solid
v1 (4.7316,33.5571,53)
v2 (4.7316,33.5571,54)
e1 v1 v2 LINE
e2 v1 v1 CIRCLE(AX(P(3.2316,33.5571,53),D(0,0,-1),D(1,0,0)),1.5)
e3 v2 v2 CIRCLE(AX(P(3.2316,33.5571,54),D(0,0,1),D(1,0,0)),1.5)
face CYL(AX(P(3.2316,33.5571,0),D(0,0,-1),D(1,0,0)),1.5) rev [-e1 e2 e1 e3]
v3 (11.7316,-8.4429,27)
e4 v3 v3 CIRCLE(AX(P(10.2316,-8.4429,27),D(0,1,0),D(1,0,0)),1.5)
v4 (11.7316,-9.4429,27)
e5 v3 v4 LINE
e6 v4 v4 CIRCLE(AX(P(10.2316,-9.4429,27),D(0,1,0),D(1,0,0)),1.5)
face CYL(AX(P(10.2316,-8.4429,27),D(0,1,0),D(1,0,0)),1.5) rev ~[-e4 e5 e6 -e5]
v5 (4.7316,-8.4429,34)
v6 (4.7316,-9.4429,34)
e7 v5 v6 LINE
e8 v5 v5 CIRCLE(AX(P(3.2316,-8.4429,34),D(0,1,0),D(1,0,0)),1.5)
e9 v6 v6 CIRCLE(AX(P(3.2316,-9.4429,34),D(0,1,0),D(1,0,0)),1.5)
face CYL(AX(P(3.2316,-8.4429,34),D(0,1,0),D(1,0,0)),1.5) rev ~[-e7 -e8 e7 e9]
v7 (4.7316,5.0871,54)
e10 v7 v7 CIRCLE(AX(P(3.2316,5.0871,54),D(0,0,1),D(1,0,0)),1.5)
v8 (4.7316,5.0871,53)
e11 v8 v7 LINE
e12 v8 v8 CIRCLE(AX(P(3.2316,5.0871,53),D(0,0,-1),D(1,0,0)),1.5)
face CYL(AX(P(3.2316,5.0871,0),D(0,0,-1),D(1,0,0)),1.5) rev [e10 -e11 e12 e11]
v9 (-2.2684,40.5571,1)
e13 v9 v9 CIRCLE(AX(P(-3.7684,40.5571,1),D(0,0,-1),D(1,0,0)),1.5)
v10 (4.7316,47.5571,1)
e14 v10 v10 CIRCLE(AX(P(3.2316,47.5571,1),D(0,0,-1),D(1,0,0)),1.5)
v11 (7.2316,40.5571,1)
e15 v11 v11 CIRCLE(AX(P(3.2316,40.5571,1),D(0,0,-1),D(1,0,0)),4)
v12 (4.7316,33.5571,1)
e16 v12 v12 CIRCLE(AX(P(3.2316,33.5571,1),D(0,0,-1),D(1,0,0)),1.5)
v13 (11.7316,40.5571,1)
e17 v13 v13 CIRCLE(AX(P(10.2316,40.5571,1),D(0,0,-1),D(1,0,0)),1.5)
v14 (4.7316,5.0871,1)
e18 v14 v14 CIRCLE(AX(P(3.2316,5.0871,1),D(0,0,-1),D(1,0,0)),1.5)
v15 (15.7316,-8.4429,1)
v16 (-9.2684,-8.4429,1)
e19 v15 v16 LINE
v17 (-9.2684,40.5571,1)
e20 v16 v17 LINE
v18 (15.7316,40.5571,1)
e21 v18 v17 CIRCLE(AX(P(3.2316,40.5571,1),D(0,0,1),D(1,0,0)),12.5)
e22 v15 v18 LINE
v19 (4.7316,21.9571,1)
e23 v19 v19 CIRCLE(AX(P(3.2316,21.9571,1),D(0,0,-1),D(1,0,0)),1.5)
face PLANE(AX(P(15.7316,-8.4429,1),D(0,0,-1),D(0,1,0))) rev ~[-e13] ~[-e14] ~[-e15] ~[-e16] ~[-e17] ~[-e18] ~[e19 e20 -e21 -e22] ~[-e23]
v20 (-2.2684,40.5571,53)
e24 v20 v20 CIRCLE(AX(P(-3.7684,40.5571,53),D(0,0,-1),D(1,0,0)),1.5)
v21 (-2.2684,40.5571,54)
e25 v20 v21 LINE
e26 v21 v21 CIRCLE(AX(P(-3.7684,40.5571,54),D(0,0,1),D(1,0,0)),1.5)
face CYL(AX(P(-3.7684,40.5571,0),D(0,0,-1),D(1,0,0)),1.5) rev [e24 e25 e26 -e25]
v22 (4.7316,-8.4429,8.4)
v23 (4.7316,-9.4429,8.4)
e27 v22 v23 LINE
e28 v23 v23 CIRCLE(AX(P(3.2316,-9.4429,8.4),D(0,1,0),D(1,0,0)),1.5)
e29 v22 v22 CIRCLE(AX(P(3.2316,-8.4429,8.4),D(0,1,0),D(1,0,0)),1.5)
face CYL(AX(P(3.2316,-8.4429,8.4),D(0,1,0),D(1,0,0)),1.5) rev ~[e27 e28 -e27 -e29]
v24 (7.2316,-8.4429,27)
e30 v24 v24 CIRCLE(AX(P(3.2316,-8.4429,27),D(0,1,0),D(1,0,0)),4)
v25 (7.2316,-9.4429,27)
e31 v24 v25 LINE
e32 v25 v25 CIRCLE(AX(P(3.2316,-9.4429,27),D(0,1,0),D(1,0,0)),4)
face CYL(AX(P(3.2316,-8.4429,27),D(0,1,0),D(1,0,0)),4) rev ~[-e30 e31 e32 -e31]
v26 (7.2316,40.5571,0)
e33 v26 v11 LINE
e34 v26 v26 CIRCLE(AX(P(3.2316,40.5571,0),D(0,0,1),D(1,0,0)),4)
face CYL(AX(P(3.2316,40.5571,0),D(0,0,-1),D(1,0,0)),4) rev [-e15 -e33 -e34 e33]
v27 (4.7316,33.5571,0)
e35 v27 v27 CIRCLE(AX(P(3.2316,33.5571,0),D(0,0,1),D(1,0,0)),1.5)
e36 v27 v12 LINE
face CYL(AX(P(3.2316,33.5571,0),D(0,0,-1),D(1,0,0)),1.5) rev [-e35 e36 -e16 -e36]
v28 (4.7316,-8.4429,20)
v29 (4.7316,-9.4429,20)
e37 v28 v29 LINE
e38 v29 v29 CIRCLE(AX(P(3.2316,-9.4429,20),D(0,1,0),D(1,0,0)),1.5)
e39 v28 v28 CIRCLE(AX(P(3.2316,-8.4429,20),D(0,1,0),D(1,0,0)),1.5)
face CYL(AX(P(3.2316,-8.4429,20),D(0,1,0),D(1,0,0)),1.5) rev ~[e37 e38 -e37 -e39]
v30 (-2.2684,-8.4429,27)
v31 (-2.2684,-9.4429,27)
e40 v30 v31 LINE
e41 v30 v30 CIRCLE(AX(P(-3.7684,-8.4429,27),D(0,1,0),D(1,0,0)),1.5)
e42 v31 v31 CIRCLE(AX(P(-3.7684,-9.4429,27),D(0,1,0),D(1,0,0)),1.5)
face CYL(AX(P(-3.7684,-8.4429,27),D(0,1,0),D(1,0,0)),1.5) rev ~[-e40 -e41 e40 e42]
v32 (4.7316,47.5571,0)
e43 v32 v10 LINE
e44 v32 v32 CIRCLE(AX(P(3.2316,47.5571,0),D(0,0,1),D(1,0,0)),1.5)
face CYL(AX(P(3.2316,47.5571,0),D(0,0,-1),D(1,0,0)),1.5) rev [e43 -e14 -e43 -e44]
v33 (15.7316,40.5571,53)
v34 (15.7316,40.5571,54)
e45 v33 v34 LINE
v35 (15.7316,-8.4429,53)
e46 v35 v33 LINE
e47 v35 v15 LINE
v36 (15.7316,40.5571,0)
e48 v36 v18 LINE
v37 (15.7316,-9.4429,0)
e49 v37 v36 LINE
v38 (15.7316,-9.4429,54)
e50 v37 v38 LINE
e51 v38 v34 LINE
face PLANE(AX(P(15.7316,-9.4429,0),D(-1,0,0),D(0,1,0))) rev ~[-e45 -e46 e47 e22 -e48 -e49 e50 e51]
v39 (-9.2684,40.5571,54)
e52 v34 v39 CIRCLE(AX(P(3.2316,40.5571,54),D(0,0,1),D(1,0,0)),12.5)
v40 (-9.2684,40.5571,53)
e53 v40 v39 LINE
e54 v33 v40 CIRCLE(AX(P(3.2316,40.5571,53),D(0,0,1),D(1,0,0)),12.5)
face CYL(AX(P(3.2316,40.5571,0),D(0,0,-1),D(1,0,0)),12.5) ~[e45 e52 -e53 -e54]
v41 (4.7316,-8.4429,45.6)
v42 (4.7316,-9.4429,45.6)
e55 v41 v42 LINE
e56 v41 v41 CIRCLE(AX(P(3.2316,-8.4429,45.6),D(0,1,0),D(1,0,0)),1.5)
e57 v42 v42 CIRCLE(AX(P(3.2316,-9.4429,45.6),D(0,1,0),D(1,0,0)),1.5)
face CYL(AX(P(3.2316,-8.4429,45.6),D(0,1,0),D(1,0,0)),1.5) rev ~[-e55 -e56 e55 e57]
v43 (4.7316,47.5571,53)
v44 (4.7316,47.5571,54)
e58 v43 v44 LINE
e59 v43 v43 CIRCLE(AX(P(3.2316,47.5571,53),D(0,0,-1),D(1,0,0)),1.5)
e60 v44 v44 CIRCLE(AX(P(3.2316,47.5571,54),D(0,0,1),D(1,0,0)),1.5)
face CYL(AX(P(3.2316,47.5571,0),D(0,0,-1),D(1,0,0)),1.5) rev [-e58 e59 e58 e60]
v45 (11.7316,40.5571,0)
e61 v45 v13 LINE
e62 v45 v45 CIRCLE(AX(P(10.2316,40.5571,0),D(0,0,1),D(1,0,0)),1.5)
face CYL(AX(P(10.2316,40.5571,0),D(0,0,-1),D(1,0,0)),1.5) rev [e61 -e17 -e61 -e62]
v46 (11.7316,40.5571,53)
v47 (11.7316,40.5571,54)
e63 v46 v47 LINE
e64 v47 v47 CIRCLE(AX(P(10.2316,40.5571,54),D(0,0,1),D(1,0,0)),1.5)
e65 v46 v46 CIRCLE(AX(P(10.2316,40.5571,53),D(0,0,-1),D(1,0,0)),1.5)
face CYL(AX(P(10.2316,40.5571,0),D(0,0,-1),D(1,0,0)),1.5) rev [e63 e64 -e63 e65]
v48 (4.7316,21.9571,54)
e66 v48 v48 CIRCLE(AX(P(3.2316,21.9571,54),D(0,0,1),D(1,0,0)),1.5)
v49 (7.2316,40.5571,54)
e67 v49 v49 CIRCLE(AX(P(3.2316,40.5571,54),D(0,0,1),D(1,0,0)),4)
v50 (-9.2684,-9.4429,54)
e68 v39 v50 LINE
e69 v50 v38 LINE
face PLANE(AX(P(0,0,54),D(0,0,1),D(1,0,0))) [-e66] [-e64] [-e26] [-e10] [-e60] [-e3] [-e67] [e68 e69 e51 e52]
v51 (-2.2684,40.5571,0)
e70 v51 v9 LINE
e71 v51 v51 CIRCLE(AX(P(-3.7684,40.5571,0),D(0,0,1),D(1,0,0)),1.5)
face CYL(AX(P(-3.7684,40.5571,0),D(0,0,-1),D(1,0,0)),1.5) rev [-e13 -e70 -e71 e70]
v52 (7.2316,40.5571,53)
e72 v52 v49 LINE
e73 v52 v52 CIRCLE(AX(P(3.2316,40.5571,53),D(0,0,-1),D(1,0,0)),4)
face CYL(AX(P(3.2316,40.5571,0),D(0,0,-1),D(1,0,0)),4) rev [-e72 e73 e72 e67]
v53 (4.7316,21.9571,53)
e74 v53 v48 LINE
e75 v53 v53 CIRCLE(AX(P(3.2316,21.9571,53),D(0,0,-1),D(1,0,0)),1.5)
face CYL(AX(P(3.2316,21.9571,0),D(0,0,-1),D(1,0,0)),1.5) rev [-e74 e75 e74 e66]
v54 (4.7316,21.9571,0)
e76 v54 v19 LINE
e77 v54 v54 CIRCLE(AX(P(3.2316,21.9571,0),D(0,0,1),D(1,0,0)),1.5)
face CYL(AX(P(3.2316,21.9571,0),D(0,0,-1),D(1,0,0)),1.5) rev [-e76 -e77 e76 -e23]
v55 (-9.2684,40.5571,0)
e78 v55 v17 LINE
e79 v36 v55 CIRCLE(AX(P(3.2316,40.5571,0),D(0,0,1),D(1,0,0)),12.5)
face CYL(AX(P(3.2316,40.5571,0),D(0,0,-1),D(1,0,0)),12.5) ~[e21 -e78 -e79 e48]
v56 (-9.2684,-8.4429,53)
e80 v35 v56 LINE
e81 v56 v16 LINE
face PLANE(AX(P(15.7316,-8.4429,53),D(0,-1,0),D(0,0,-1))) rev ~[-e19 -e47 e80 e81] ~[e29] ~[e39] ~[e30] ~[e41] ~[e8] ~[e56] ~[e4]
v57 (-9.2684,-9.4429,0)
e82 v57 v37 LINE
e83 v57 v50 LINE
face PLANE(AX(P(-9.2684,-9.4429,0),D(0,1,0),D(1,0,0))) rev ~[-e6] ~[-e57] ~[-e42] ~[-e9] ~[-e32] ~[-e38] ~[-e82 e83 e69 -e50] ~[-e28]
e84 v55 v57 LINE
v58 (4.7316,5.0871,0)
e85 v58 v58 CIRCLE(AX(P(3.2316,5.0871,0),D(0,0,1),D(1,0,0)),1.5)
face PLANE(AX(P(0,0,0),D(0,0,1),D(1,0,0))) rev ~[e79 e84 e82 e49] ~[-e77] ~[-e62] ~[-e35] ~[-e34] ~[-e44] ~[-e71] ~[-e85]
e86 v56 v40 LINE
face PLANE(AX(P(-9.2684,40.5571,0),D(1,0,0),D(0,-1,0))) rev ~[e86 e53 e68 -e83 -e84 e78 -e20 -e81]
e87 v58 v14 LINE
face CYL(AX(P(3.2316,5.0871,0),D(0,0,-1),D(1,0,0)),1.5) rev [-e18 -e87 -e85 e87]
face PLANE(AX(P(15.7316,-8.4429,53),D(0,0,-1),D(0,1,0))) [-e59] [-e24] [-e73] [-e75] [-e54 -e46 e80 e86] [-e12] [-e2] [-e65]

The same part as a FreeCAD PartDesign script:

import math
import FreeCAD as App
import Part
import Sketcher
from FreeCAD import Vector

doc = App.newDocument("Part")
body = doc.addObject("PartDesign::Body", "Body")

sketch1 = body.newObject("Sketcher::SketchObject", "Sketch")
sketch1.AttachmentSupport = (doc.getObject("XY_Plane"), [""])
sketch1.MapMode = "FlatFace"
sketch1.addGeometry([
    Part.LineSegment(Vector(-9.3, 40.6, 0), Vector(-9.3, -9.4, 0)),
    Part.LineSegment(Vector(-9.3, -9.4, 0), Vector(15.7, -9.4, 0)),
    Part.LineSegment(Vector(15.7, -9.4, 0), Vector(15.7, 40.6, 0)),
    Part.ArcOfCircle(Part.Circle(Vector(3.2, 40.6, 0), Vector(0, 0, 1), 12.5), math.radians(0), math.radians(180)),
    Part.Circle(Vector(3.2, 5.1, 0), Vector(0, 0, 1), 1.5),
    Part.Circle(Vector(-3.8, 40.6, 0), Vector(0, 0, 1), 1.5),
    Part.Circle(Vector(3.2, 22, 0), Vector(0, 0, 1), 1.5),
    Part.Circle(Vector(3.2, 33.6, 0), Vector(0, 0, 1), 1.5),
    Part.Circle(Vector(3.2, 40.6, 0), Vector(0, 0, 1), 4),
    Part.Circle(Vector(3.2, 47.6, 0), Vector(0, 0, 1), 1.5),
    Part.Circle(Vector(10.2, 40.6, 0), Vector(0, 0, 1), 1.5),
], False)
sketch1.addConstraint([
    Sketcher.Constraint("Coincident", 0, 2, 1, 1),
    Sketcher.Constraint("Coincident", 1, 2, 2, 1),
    Sketcher.Constraint("Tangent", 2, 2, 3, 1),
    Sketcher.Constraint("Tangent", 3, 2, 0, 1),
    Sketcher.Constraint("Vertical", 0),
    Sketcher.Constraint("Horizontal", 1),
    Sketcher.Constraint("Vertical", 2),
    Sketcher.Constraint("Coincident", 8, 3, 3, 3),
    Sketcher.Constraint("Equal", 4, 5),
    Sketcher.Constraint("Equal", 5, 6),
    Sketcher.Constraint("Equal", 6, 7),
    Sketcher.Constraint("Equal", 7, 9),
    Sketcher.Constraint("Equal", 9, 10),
    Sketcher.Constraint("Horizontal", 3, 3, 5, 3),
    Sketcher.Constraint("Horizontal", 8, 3, 10, 3),
    Sketcher.Constraint("Vertical", 3, 3, 4, 3),
    Sketcher.Constraint("Vertical", 4, 3, 6, 3),
    Sketcher.Constraint("Vertical", 6, 3, 7, 3),
    Sketcher.Constraint("Vertical", 8, 3, 9, 3),
    Sketcher.Constraint("Diameter", 4, 3.0),
    Sketcher.Constraint("Diameter", 8, 8.0),
    Sketcher.Constraint("Radius", 3, 12.5),
    Sketcher.Constraint("DistanceY", 0, 2, 0, 1, 50.0),
    Sketcher.Constraint("DistanceX", 5, 3, 3, 3, 7.0),
    Sketcher.Constraint("DistanceY", 7, 3, 3, 3, 7.0),
    Sketcher.Constraint("DistanceY", 3, 3, 9, 3, 7.0),
    Sketcher.Constraint("DistanceX", 3, 3, 10, 3, 7.0),
    Sketcher.Constraint("DistanceY", 6, 3, 3, 3, 18.6),
    Sketcher.Constraint("DistanceY", 4, 3, 3, 3, 35.47),
    Sketcher.Constraint("DistanceY", -1, 1, 3, 3, 40.557),
    Sketcher.Constraint("DistanceX", -1, 1, 3, 3, 3.2316),
])
pad1 = body.newObject("PartDesign::Pad", "Pad")
pad1.Profile = sketch1
pad1.Length = 54

sketch2 = body.newObject("Sketcher::SketchObject", "Sketch001")
sketch2.AttachmentSupport = (doc.getObject("YZ_Plane"), [""])
sketch2.MapMode = "FlatFace"
sketch2.AttachmentOffset = App.Placement(Vector(0, 0, 15.7316), App.Rotation())
sketch2.addGeometry([
    Part.LineSegment(Vector(-8, 53, 0), Vector(-8, 1, 0)),
    Part.LineSegment(Vector(-8, 1, 0), Vector(53, 1, 0)),
    Part.LineSegment(Vector(53, 1, 0), Vector(53, 53, 0)),
    Part.LineSegment(Vector(53, 53, 0), Vector(-8, 53, 0)),
], False)
sketch2.addConstraint([
    Sketcher.Constraint("Coincident", 0, 2, 1, 1),
    Sketcher.Constraint("Coincident", 1, 2, 2, 1),
    Sketcher.Constraint("Coincident", 2, 2, 3, 1),
    Sketcher.Constraint("Coincident", 3, 2, 0, 1),
    Sketcher.Constraint("Vertical", 0),
    Sketcher.Constraint("Horizontal", 1),
    Sketcher.Constraint("Vertical", 2),
    Sketcher.Constraint("Horizontal", 3),
    Sketcher.Constraint("DistanceY", -1, 1, 0, 2, 1.0),
    Sketcher.Constraint("DistanceY", 0, 2, 0, 1, 52.0),
    Sketcher.Constraint("DistanceX", 1, 1, 1, 2, 61.5),
    Sketcher.Constraint("DistanceX", 0, 2, -1, 1, 8.443),
])
pocket1 = body.newObject("PartDesign::Pocket", "Pocket")
pocket1.Profile = sketch2
pocket1.Type = "ThroughAll"

sketch3 = body.newObject("Sketcher::SketchObject", "Sketch002")
sketch3.AttachmentSupport = (doc.getObject("XZ_Plane"), [""])
sketch3.MapMode = "FlatFace"
sketch3.AttachmentOffset = App.Placement(Vector(0, 0, 8.4429), App.Rotation())
sketch3.addGeometry([
    Part.Circle(Vector(3.2, 27, 0), Vector(0, 0, 1), 4),
    Part.Circle(Vector(3.2, 20, 0), Vector(0, 0, 1), 1.5),
    Part.Circle(Vector(-3.8, 27, 0), Vector(0, 0, 1), 1.5),
    Part.Circle(Vector(3.2, 34, 0), Vector(0, 0, 1), 1.5),
    Part.Circle(Vector(10.2, 27, 0), Vector(0, 0, 1), 1.5),
    Part.Circle(Vector(3.2, 8.4, 0), Vector(0, 0, 1), 1.5),
    Part.Circle(Vector(3.2, 45.6, 0), Vector(0, 0, 1), 1.5),
], False)
sketch3.addConstraint([
    Sketcher.Constraint("Equal", 1, 2),
    Sketcher.Constraint("Equal", 2, 3),
    Sketcher.Constraint("Equal", 3, 4),
    Sketcher.Constraint("Equal", 4, 5),
    Sketcher.Constraint("Equal", 5, 6),
    Sketcher.Constraint("Horizontal", 0, 3, 2, 3),
    Sketcher.Constraint("Horizontal", 2, 3, 4, 3),
    Sketcher.Constraint("Vertical", 0, 3, 1, 3),
    Sketcher.Constraint("Vertical", 1, 3, 3, 3),
    Sketcher.Constraint("Vertical", 3, 3, 5, 3),
    Sketcher.Constraint("Vertical", 5, 3, 6, 3),
    Sketcher.Constraint("Diameter", 1, 3.0),
    Sketcher.Constraint("Diameter", 0, 8.0),
    Sketcher.Constraint("DistanceY", -1, 1, 0, 3, 27.0),
    Sketcher.Constraint("DistanceY", -1, 1, 1, 3, 20.0),
    Sketcher.Constraint("DistanceY", -1, 1, 3, 3, 34.0),
    Sketcher.Constraint("DistanceX", 2, 3, 0, 3, 7.0),
    Sketcher.Constraint("DistanceX", 0, 3, 4, 3, 7.0),
    Sketcher.Constraint("DistanceY", -1, 1, 5, 3, 8.4),
    Sketcher.Constraint("DistanceY", -1, 1, 6, 3, 45.6),
    Sketcher.Constraint("DistanceX", -1, 1, 0, 3, 3.2316),
])
pocket2 = body.newObject("PartDesign::Pocket", "Pocket001")
pocket2.Profile = sketch3
pocket2.Length = 58
pocket2.Reversed = True

doc.recompute()
